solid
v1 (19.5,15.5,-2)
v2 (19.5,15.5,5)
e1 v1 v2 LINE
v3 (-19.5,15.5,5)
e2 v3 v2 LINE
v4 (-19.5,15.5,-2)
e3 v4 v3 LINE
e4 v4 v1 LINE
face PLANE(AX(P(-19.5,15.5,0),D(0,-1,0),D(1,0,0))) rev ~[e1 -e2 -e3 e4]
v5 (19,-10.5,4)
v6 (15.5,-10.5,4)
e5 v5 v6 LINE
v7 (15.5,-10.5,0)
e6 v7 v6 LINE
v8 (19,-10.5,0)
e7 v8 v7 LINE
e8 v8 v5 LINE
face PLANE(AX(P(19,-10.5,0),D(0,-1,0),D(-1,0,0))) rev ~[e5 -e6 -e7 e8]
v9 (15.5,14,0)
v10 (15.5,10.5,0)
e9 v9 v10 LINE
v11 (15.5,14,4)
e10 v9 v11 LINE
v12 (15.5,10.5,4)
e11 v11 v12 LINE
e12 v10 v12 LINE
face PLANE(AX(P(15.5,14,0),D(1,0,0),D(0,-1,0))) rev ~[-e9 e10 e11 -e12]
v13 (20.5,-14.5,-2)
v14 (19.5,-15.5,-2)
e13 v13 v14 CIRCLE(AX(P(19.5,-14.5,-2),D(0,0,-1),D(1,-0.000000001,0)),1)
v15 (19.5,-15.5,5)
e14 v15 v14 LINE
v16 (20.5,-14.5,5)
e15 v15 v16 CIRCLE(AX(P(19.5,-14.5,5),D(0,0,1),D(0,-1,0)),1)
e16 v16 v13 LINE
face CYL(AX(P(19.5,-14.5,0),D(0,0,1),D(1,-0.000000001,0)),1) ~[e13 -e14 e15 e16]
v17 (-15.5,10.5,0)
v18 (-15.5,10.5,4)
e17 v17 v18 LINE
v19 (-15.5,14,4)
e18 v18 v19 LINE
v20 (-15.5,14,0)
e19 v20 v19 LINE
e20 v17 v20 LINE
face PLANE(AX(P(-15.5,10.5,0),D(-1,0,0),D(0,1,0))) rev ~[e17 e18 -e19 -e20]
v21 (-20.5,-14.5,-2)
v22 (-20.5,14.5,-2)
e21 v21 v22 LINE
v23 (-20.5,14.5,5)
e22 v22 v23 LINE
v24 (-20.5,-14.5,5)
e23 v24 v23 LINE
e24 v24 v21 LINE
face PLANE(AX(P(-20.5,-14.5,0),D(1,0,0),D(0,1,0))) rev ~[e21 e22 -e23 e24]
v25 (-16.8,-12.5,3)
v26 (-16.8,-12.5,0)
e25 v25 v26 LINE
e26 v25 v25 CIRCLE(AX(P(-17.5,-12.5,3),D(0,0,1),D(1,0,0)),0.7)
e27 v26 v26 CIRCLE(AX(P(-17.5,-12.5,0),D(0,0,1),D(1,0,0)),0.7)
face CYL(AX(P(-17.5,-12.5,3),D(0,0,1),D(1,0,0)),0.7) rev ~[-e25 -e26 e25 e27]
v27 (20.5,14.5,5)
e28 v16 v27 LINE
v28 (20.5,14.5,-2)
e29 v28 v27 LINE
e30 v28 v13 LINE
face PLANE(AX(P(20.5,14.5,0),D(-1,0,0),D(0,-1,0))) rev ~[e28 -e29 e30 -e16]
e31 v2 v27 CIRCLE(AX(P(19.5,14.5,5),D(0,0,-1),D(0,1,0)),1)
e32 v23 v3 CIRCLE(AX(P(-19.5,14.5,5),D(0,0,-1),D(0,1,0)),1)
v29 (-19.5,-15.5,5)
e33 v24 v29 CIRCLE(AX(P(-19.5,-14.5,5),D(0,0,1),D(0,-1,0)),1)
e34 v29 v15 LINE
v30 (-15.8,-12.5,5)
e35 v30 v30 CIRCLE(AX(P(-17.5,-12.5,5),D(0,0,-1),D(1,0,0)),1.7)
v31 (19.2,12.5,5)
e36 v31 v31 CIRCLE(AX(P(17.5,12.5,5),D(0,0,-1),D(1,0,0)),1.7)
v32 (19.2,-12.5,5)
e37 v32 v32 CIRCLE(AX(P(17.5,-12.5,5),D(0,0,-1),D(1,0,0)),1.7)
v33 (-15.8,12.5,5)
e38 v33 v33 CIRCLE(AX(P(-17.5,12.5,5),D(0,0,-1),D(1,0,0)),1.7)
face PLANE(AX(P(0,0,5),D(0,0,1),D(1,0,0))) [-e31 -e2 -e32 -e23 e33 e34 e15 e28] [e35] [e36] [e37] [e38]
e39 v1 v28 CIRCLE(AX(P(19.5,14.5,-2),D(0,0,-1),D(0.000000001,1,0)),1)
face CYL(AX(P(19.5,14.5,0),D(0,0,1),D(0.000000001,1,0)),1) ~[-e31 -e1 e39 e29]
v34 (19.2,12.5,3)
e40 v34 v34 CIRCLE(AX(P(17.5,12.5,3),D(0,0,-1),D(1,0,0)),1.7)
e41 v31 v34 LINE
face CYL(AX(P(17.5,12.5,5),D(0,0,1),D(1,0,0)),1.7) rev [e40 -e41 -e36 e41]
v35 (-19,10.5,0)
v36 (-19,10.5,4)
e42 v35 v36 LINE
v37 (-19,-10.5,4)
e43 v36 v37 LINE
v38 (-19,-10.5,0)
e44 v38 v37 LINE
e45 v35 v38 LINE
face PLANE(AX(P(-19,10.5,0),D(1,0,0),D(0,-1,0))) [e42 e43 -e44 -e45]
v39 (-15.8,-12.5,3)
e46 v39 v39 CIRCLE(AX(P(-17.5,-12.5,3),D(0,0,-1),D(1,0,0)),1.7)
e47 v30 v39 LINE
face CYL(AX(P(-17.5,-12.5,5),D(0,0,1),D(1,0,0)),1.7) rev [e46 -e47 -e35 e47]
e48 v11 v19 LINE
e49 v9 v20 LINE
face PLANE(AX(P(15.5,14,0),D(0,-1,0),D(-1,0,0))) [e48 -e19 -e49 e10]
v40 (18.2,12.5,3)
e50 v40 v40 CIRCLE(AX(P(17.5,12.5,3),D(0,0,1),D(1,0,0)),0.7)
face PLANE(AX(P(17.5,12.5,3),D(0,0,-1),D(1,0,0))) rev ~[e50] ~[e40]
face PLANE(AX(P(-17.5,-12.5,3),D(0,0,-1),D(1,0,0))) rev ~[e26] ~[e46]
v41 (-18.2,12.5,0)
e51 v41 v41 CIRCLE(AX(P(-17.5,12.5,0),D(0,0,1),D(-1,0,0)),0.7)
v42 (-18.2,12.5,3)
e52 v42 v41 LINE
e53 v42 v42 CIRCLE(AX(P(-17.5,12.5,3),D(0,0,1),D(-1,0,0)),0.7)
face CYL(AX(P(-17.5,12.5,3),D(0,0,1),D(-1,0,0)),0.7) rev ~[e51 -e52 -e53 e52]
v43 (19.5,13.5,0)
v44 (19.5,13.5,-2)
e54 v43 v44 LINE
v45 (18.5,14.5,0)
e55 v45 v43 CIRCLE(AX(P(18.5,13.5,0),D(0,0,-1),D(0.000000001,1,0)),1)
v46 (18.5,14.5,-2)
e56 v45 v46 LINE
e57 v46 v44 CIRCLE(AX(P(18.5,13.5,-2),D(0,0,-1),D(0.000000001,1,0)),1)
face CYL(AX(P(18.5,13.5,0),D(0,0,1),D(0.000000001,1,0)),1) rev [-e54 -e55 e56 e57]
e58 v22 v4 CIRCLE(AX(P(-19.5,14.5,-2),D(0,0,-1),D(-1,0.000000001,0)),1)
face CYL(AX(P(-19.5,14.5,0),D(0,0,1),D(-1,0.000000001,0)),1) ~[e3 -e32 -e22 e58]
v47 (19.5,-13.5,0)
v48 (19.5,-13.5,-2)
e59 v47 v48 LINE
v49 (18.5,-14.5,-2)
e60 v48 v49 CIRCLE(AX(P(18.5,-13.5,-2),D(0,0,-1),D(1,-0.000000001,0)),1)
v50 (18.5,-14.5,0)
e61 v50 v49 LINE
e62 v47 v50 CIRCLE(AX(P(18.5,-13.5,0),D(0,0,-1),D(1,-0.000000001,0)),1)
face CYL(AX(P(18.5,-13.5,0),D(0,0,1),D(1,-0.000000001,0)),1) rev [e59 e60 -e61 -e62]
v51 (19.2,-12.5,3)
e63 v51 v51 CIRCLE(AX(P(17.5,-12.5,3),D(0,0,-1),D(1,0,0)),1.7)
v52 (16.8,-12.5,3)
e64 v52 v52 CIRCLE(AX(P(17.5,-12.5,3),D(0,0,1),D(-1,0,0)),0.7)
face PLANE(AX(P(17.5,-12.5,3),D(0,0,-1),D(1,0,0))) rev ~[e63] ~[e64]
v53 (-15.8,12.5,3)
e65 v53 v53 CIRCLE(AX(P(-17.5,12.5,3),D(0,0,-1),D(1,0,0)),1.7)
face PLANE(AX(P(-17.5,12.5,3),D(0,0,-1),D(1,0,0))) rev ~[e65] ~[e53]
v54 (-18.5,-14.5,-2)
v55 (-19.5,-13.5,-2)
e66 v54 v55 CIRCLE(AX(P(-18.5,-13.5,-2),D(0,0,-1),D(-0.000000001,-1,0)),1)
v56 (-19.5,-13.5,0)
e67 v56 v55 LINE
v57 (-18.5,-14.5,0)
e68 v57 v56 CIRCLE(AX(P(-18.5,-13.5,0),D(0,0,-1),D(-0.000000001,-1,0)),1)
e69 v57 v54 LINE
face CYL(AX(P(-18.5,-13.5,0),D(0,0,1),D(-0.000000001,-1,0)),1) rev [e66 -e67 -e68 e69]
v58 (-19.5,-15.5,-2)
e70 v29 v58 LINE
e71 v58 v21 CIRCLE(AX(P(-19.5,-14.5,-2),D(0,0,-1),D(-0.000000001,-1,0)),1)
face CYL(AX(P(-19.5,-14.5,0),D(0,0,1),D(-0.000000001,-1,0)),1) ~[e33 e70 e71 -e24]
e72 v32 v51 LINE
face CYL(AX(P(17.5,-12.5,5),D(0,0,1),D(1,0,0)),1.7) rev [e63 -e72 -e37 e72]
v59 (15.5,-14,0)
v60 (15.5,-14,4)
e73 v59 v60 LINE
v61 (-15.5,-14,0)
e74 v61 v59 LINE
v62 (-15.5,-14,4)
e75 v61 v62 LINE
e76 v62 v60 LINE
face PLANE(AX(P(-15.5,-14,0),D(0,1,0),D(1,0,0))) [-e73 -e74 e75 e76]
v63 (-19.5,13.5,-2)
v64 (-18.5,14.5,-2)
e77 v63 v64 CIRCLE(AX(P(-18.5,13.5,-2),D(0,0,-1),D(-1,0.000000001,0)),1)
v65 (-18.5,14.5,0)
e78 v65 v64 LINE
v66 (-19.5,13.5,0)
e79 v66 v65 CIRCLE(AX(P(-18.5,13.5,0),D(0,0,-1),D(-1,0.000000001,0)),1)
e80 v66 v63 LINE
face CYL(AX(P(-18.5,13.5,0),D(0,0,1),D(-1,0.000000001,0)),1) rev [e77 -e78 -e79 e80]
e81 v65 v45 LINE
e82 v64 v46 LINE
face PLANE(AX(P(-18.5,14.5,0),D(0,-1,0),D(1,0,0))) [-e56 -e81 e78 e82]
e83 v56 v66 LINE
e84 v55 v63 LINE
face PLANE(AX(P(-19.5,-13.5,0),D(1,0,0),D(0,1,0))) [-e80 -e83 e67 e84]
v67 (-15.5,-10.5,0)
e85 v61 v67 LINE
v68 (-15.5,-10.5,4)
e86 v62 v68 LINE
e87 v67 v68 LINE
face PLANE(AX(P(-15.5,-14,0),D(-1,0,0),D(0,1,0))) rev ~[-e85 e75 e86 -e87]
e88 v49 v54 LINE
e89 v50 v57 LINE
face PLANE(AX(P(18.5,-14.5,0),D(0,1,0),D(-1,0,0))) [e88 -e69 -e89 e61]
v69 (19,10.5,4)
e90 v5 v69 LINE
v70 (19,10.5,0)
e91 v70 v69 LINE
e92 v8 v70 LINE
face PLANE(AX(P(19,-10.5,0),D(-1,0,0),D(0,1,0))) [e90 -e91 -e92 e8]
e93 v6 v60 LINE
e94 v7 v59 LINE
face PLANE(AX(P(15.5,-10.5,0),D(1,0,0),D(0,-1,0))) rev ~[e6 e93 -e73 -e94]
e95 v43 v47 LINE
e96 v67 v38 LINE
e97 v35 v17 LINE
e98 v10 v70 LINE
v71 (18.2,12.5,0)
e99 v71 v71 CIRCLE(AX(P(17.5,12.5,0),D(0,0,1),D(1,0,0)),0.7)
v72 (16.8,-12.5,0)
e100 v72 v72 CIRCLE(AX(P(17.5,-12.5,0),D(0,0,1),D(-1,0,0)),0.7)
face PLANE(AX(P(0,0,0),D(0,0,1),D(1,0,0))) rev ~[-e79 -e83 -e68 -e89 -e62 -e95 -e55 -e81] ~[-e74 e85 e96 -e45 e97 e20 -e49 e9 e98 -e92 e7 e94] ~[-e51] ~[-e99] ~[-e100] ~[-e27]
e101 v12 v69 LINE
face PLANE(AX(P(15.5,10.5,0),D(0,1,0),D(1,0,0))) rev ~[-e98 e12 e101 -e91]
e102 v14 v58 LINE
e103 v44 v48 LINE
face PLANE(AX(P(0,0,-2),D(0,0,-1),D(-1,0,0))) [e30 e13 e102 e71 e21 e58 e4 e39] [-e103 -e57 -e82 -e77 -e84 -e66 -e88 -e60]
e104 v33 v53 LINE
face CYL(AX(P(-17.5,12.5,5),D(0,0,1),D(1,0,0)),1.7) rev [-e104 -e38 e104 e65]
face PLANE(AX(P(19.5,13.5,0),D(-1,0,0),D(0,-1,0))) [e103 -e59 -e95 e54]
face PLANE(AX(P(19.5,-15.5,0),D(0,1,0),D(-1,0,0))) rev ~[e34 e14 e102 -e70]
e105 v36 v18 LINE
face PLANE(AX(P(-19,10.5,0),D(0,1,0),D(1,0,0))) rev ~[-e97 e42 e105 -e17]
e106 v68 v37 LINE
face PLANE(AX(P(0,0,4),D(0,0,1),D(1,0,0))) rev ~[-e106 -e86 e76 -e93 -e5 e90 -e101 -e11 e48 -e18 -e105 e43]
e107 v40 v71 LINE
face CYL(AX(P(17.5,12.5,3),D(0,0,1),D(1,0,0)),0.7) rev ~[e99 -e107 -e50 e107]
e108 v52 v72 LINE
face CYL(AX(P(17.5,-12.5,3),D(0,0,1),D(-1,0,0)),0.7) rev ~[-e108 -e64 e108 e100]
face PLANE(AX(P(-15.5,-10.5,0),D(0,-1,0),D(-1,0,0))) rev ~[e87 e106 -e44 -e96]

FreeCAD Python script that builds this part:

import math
import FreeCAD as App
import Part
import Sketcher

V = App.Vector
Q = App.Units.Quantity


def edges_at(feature, points):
    """Names of the edges that pass closest to the given points."""
    edges = feature.Shape.Edges
    near = lambda p: min(range(len(edges)), key=lambda i: edges[i].distToShape(Part.Vertex(*p))[0])
    return sorted({f"Edge{near(p) + 1}" for p in points})

doc = App.newDocument("Part")
body = doc.addObject("PartDesign::Body", "Body")

# Sketch on XY plane
sketch1 = body.newObject("Sketcher::SketchObject", "Sketch")
sketch1.AttachmentSupport = (doc.getObject("XY_Plane"), [""])
sketch1.MapMode = "FlatFace"
sketch1.addGeometry([
    Part.LineSegment(V(-20, 16, 0), V(-20, -16, 0)),  # 0
    Part.LineSegment(V(-20, -16, 0), V(20, -16, 0)),  # 1
    Part.LineSegment(V(20, -16, 0), V(20, 16, 0)),  # 2
    Part.LineSegment(V(20, 16, 0), V(-20, 16, 0)),  # 3
    Part.LineSegment(V(16, -10, 0), V(-16, -10, 0)),  # 4
    Part.LineSegment(V(-16, -10, 0), V(-16, 10, 0)),  # 5
    Part.LineSegment(V(-16, 10, 0), V(16, 10, 0)),  # 6
    Part.LineSegment(V(16, 10, 0), V(16, -10, 0)),  # 7
], False)
sketch1.addConstraint([
    Sketcher.Constraint("Coincident", 0, 2, 1, 1),
    Sketcher.Constraint("Coincident", 1, 2, 2, 1),
    Sketcher.Constraint("Coincident", 2, 2, 3, 1),
    Sketcher.Constraint("Coincident", 3, 2, 0, 1),
    Sketcher.Constraint("Coincident", 4, 2, 5, 1),
    Sketcher.Constraint("Coincident", 5, 2, 6, 1),
    Sketcher.Constraint("Coincident", 6, 2, 7, 1),
    Sketcher.Constraint("Coincident", 7, 2, 4, 1),
    Sketcher.Constraint("Vertical", 0),
    Sketcher.Constraint("Horizontal", 1),
    Sketcher.Constraint("Vertical", 2),
    Sketcher.Constraint("Horizontal", 3),
    Sketcher.Constraint("Horizontal", 4),
    Sketcher.Constraint("Vertical", 5),
    Sketcher.Constraint("Horizontal", 6),
    Sketcher.Constraint("Vertical", 7),
    Sketcher.Constraint("Symmetric", 0, 2, 2, 2, -1, 1),
    Sketcher.Constraint("Symmetric", 4, 2, 6, 2, -1, 1),
    Sketcher.Constraint("Equal", 6, 0),
    Sketcher.Constraint("DistanceX", 1, 1, 1, 2, Q("41 mm")),
    Sketcher.Constraint("DistanceX", 4, 2, 4, 1, Q("31 mm")),
    Sketcher.Constraint("DistanceY", 5, 1, 5, 2, Q("21 mm")),
])
pad1 = body.newObject("PartDesign::Pad", "Pad")
pad1.Profile = sketch1
pad1.Length = 4

# Sketch on XY plane
sketch2 = body.newObject("Sketcher::SketchObject", "Sketch001")
sketch2.AttachmentSupport = (doc.getObject("XY_Plane"), [""])
sketch2.MapMode = "FlatFace"
sketch2.AttachmentOffset = App.Placement(V(0, 0, 4), App.Rotation())
sketch2.addGeometry([
    Part.LineSegment(V(-20, 16, 0), V(-20, -16, 0)),
    Part.LineSegment(V(-20, -16, 0), V(20, -16, 0)),
    Part.LineSegment(V(20, -16, 0), V(20, 16, 0)),
    Part.LineSegment(V(20, 16, 0), V(-20, 16, 0)),
], False)
sketch2.addConstraint([
    Sketcher.Constraint("Coincident", 0, 2, 1, 1),
    Sketcher.Constraint("Coincident", 1, 2, 2, 1),
    Sketcher.Constraint("Coincident", 2, 2, 3, 1),
    Sketcher.Constraint("Coincident", 3, 2, 0, 1),
    Sketcher.Constraint("Vertical", 0),
    Sketcher.Constraint("Horizontal", 1),
    Sketcher.Constraint("Vertical", 2),
    Sketcher.Constraint("Horizontal", 3),
    Sketcher.Constraint("Symmetric", 0, 2, 2, 2, -1, 1),
    Sketcher.Constraint("DistanceX", 1, 1, 1, 2, Q("41 mm")),
    Sketcher.Constraint("DistanceY", 0, 2, 0, 1, Q("31 mm")),
])
pad2 = body.newObject("PartDesign::Pad", "Pad001")
pad2.Profile = sketch2
pad2.Length = 1

# Sketch on XY plane
sketch3 = body.newObject("Sketcher::SketchObject", "Sketch002")
sketch3.AttachmentSupport = (doc.getObject("XY_Plane"), [""])
sketch3.MapMode = "FlatFace"
sketch3.AttachmentOffset = App.Placement(V(0, 0, 5), App.Rotation())
sketch3.addGeometry([
    Part.Circle(V(-17.5, 12.5, 0), V(0, 0, 1), 1.7),
    Part.Circle(V(17.5, 12.5, 0), V(0, 0, 1), 1.7),
    Part.Circle(V(-17.5, -12.5, 0), V(0, 0, 1), 1.7),
    Part.Circle(V(17.5, -12.5, 0), V(0, 0, 1), 1.7),
], False)
sketch3.addConstraint([
    Sketcher.Constraint("Equal", 0, 1),
    Sketcher.Constraint("Equal", 1, 2),
    Sketcher.Constraint("Equal", 2, 3),
    Sketcher.Constraint("Symmetric", 1, 3, 2, 3, -1, 1),
    Sketcher.Constraint("Symmetric", 0, 3, 3, 3, -1, 1),
    Sketcher.Constraint("Symmetric", 0, 3, 1, 3, -2),
    Sketcher.Constraint("Diameter", 0, Q("3.4 mm")),
    Sketcher.Constraint("DistanceX", 0, 3, 1, 3, Q("35 mm")),
    Sketcher.Constraint("DistanceY", 2, 3, 0, 3, Q("25 mm")),
])
pocket1 = body.newObject("PartDesign::Pocket", "Pocket")
pocket1.Profile = sketch3
pocket1.Length = 2

# Sketch on XY plane
sketch4 = body.newObject("Sketcher::SketchObject", "Sketch003")
sketch4.AttachmentSupport = (doc.getObject("XY_Plane"), [""])
sketch4.MapMode = "FlatFace"
sketch4.AttachmentOffset = App.Placement(V(0, 0, 3), App.Rotation())
sketch4.addGeometry([
    Part.Circle(V(17.5, 12.5, 0), V(0, 0, 1), 0.7),
    Part.Circle(V(-17.5, 12.5, 0), V(0, 0, 1), 0.7),
    Part.Circle(V(17.5, -12.5, 0), V(0, 0, 1), 0.7),
    Part.Circle(V(-17.5, -12.5, 0), V(0, 0, 1), 0.7),
], False)
sketch4.addConstraint([
    Sketcher.Constraint("Equal", 0, 1),
    Sketcher.Constraint("Equal", 1, 2),
    Sketcher.Constraint("Equal", 2, 3),
    Sketcher.Constraint("Symmetric", 1, 3, 2, 3, -1, 1),
    Sketcher.Constraint("Symmetric", 0, 3, 3, 3, -1, 1),
    Sketcher.Constraint("Symmetric", 0, 3, 1, 3, -2),
    Sketcher.Constraint("Diameter", 0, Q("1.4 mm")),
    Sketcher.Constraint("DistanceX", 1, 3, 0, 3, Q("35 mm")),
    Sketcher.Constraint("DistanceY", 2, 3, 0, 3, Q("25 mm")),
])
pocket2 = body.newObject("PartDesign::Pocket", "Pocket001")
pocket2.Profile = sketch4
pocket2.Type = "ThroughAll"
doc.recompute()

fillet = body.newObject("PartDesign::Fillet", "Fillet")
fillet.Base = (pocket2, edges_at(pocket2, [
    (20.5, -15.5, 2.5),
    (-20.5, -15.5, 2.5),
    (-20.5, 15.5, 2.5),
    (20.5, 15.5, 2.5),
]))
fillet.Radius = 1

# Sketch on XY plane
sketch5 = body.newObject("Sketcher::SketchObject", "Sketch004")
sketch5.AttachmentSupport = (doc.getObject("XY_Plane"), [""])
sketch5.MapMode = "FlatFace"
sketch5.addGeometry([
    Part.LineSegment(V(15.5, 14, 0), V(15.5, 10.5, 0)),  # 0
    Part.LineSegment(V(15.5, 10.5, 0), V(19, 10.5, 0)),  # 1
    Part.LineSegment(V(19, 10.5, 0), V(19, -10.5, 0)),  # 2
    Part.LineSegment(V(19, -10.5, 0), V(15.5, -10.5, 0)),  # 3
    Part.LineSegment(V(15.5, -10.5, 0), V(15.5, -14, 0)),  # 4
    Part.LineSegment(V(15.5, -14, 0), V(-15.5, -14, 0)),  # 5
    Part.LineSegment(V(-15.5, -14, 0), V(-15.5, -10.5, 0)),  # 6
    Part.LineSegment(V(-15.5, -10.5, 0), V(-19, -10.5, 0)),  # 7
    Part.LineSegment(V(-19, -10.5, 0), V(-19, 10.5, 0)),  # 8
    Part.LineSegment(V(-19, 10.5, 0), V(-15.5, 10.5, 0)),  # 9
    Part.LineSegment(V(-15.5, 10.5, 0), V(-15.5, 14, 0)),  # 10
    Part.LineSegment(V(-15.5, 14, 0), V(15.5, 14, 0)),  # 11
], False)
sketch5.addConstraint([
    Sketcher.Constraint("Coincident", 0, 2, 1, 1),
    Sketcher.Constraint("Coincident", 1, 2, 2, 1),
    Sketcher.Constraint("Coincident", 2, 2, 3, 1),
    Sketcher.Constraint("Coincident", 3, 2, 4, 1),
    Sketcher.Constraint("Coincident", 4, 2, 5, 1),
    Sketcher.Constraint("Coincident", 5, 2, 6, 1),
    Sketcher.Constraint("Coincident", 6, 2, 7, 1),
    Sketcher.Constraint("Coincident", 7, 2, 8, 1),
    Sketcher.Constraint("Coincident", 8, 2, 9, 1),
    Sketcher.Constraint("Coincident", 9, 2, 10, 1),
    Sketcher.Constraint("Coincident", 10, 2, 11, 1),
    Sketcher.Constraint("Coincident", 11, 2, 0, 1),
    Sketcher.Constraint("Vertical", 0),
    Sketcher.Constraint("Horizontal", 1),
    Sketcher.Constraint("Vertical", 2),
    Sketcher.Constraint("Horizontal", 3),
    Sketcher.Constraint("Vertical", 4),
    Sketcher.Constraint("Horizontal", 5),
    Sketcher.Constraint("Vertical", 6),
    Sketcher.Constraint("Horizontal", 7),
    Sketcher.Constraint("Vertical", 8),
    Sketcher.Constraint("Horizontal", 9),
    Sketcher.Constraint("Vertical", 10),
    Sketcher.Constraint("Horizontal", 11),
    Sketcher.Constraint("Symmetric", 0, 2, 6, 2, -1, 1),
    Sketcher.Constraint("Symmetric", 2, 2, 8, 2, -1, 1),
    Sketcher.Constraint("Symmetric", 4, 2, 10, 2, -1, 1),
    Sketcher.Constraint("Symmetric", 3, 2, 6, 2, -2),
    Sketcher.Constraint("Equal", 9, 0),
    Sketcher.Constraint("DistanceX", 5, 2, 5, 1, Q("31 mm")),
    Sketcher.Constraint("DistanceY", 2, 2, 2, 1, Q("21 mm")),
    Sketcher.Constraint("DistanceX", 1, 1, 1, 2, Q("3.5 mm")),
])
pocket3 = body.newObject("PartDesign::Pocket", "Pocket002")
pocket3.Profile = sketch5
pocket3.Length = 4
pocket3.Reversed = True

# Sketch on XY plane
sketch6 = body.newObject("Sketcher::SketchObject", "Sketch005")
sketch6.AttachmentSupport = (doc.getObject("XY_Plane"), [""])
sketch6.MapMode = "FlatFace"
sketch6.addGeometry([
    Part.LineSegment(V(20.5, 14.5, 0), V(20.5, -14.5, 0)),  # 0
    Part.ArcOfCircle(Part.Circle(V(19.5, -14.5, 0), V(0, 0, 1), 1), math.radians(-90), math.radians(0)),  # 1
    Part.LineSegment(V(19.5, -15.5, 0), V(-19.5, -15.5, 0)),  # 2
    Part.ArcOfCircle(Part.Circle(V(-19.5, -14.5, 0), V(0, 0, 1), 1), math.radians(-180), math.radians(-90)),  # 3
    Part.LineSegment(V(-20.5, -14.5, 0), V(-20.5, 14.5, 0)),  # 4
    Part.ArcOfCircle(Part.Circle(V(-19.5, 14.5, 0), V(0, 0, 1), 1), math.radians(90), math.radians(180)),  # 5
    Part.LineSegment(V(-19.5, 15.5, 0), V(19.5, 15.5, 0)),  # 6
    Part.ArcOfCircle(Part.Circle(V(19.5, 14.5, 0), V(0, 0, 1), 1), math.radians(0), math.radians(90)),  # 7
    Part.LineSegment(V(19.5, -13.5, 0), V(19.5, 13.5, 0)),  # 8
    Part.ArcOfCircle(Part.Circle(V(18.5, 13.5, 0), V(0, 0, 1), 1), math.radians(0), math.radians(90)),  # 9
    Part.LineSegment(V(18.5, 14.5, 0), V(-18.5, 14.5, 0)),  # 10
    Part.ArcOfCircle(Part.Circle(V(-18.5, 13.5, 0), V(0, 0, 1), 1), math.radians(90), math.radians(180)),  # 11
    Part.LineSegment(V(-19.5, 13.5, 0), V(-19.5, -13.5, 0)),  # 12
    Part.ArcOfCircle(Part.Circle(V(-18.5, -13.5, 0), V(0, 0, 1), 1), math.radians(-180), math.radians(-90)),  # 13
    Part.LineSegment(V(-18.5, -14.5, 0), V(18.5, -14.5, 0)),  # 14
    Part.ArcOfCircle(Part.Circle(V(18.5, -13.5, 0), V(0, 0, 1), 1), math.radians(-90), math.radians(0)),  # 15
], False)
sketch6.addConstraint([
    Sketcher.Constraint("Tangent", 0, 2, 1, 2),
    Sketcher.Constraint("Tangent", 1, 1, 2, 1),
    Sketcher.Constraint("Tangent", 2, 2, 3, 2),
    Sketcher.Constraint("Tangent", 3, 1, 4, 1),
    Sketcher.Constraint("Tangent", 4, 2, 5, 2),
    Sketcher.Constraint("Tangent", 5, 1, 6, 1),
    Sketcher.Constraint("Tangent", 6, 2, 7, 2),
    Sketcher.Constraint("Tangent", 7, 1, 0, 1),
    Sketcher.Constraint("Tangent", 8, 2, 9, 1),
    Sketcher.Constraint("Tangent", 9, 2, 10, 1),
    Sketcher.Constraint("Tangent", 10, 2, 11, 1),
    Sketcher.Constraint("Tangent", 11, 2, 12, 1),
    Sketcher.Constraint("Tangent", 12, 2, 13, 1),
    Sketcher.Constraint("Tangent", 13, 2, 14, 1),
    Sketcher.Constraint("Tangent", 14, 2, 15, 1),
    Sketcher.Constraint("Tangent", 15, 2, 8, 1),
    Sketcher.Constraint("Vertical", 0),
    Sketcher.Constraint("Horizontal", 2),
    Sketcher.Constraint("Vertical", 4),
    Sketcher.Constraint("Horizontal", 6),
    Sketcher.Constraint("Vertical", 8),
    Sketcher.Constraint("Horizontal", 10),
    Sketcher.Constraint("Vertical", 12),
    Sketcher.Constraint("Horizontal", 14),
    Sketcher.Constraint("Equal", 1, 3),
    Sketcher.Constraint("Equal", 3, 5),
    Sketcher.Constraint("Equal", 5, 7),
    Sketcher.Constraint("Equal", 7, 9),
    Sketcher.Constraint("Equal", 9, 11),
    Sketcher.Constraint("Equal", 11, 13),
    Sketcher.Constraint("Equal", 13, 15),
    Sketcher.Constraint("Symmetric", 1, 3, 5, 3, -1, 1),
    Sketcher.Constraint("Symmetric", 9, 3, 13, 3, -1, 1),
    Sketcher.Constraint("Horizontal", 7, 1, 9, 2),
    Sketcher.Constraint("Vertical", 6, 2, 8, 2),
    Sketcher.Constraint("Radius", 1, Q("1 mm")),
    Sketcher.Constraint("DistanceX", 2, 2, 2, 1, Q("39 mm")),
    Sketcher.Constraint("DistanceY", 0, 2, 0, 1, Q("29 mm")),
])
pad3 = body.newObject("PartDesign::Pad", "Pad002")
pad3.Profile = sketch6
pad3.Length = 2
pad3.Reversed = True

doc.recompute()
